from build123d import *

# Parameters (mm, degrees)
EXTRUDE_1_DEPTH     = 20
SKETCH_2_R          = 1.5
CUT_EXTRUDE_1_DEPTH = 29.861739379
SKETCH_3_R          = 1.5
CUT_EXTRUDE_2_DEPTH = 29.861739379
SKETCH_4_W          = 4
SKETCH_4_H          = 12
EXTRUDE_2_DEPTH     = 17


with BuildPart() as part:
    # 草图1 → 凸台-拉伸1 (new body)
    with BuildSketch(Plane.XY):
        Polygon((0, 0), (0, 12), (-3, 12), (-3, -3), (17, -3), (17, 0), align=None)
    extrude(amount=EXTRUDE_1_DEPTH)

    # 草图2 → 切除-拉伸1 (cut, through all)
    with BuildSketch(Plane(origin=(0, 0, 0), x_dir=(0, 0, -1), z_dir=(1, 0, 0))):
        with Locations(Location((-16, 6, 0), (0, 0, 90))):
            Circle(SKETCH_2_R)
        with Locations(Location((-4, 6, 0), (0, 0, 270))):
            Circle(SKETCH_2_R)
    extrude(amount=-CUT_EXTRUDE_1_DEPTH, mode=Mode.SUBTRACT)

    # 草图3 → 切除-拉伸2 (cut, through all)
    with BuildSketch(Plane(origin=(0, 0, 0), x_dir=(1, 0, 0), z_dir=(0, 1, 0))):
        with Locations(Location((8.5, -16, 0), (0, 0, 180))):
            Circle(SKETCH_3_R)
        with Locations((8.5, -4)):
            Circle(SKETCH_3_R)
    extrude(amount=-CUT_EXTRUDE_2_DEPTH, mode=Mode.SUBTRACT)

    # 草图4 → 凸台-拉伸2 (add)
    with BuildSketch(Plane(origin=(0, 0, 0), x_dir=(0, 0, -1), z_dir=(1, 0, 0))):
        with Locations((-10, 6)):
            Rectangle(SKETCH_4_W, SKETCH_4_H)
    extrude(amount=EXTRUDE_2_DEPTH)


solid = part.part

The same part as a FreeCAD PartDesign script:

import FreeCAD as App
import Part
import Sketcher
Q = App.Units.Quantity


def add_polygon(sketch, points):
    """Adds a closed chain of lines whose ends are joined by coincident constraints."""
    first, n = sketch.GeometryCount, len(points)
    for a, b in zip(points, points[1:] + points[:1]):
        sketch.addGeometry(Part.LineSegment(App.Vector(*a, 0), App.Vector(*b, 0)), False)
    for i in range(n):
        sketch.addConstraint(Sketcher.Constraint("Coincident", first + i, 2, first + (i + 1) % n, 1))

doc = App.newDocument("Part")
body = doc.addObject("PartDesign::Body", "Body")

# Sketch on XY plane
sketch1 = body.newObject("Sketcher::SketchObject", "Sketch")
sketch1.AttachmentSupport = (doc.getObject("XY_Plane"), [""])
sketch1.MapMode = "FlatFace"
add_polygon(sketch1, [(0, 0), (0, 12), (-3, 12), (-3, -3), (17, -3), (17, 0)])  # lines 0-5
sketch1.addConstraint([
    Sketcher.Constraint("Vertical", 0),
    Sketcher.Constraint("Horizontal", 1),
    Sketcher.Constraint("Vertical", 2),
    Sketcher.Constraint("Horizontal", 3),
    Sketcher.Constraint("Vertical", 4),
    Sketcher.Constraint("Horizontal", 5),
    Sketcher.Constraint("Coincident", 5, 2, -1, 1),
    Sketcher.Constraint("Equal", 1, 4),
    Sketcher.Constraint("DistanceX", 1, 2, 1, 1, Q("3 mm")),
    Sketcher.Constraint("DistanceX", 3, 1, 3, 2, Q("20 mm")),
    Sketcher.Constraint("DistanceY", 0, 1, 0, 2, Q("12 mm")),
])
pad1 = body.newObject("PartDesign::Pad", "Pad")
pad1.Profile = sketch1
pad1.Length = 20

# Sketch on YZ plane
sketch2 = body.newObject("Sketcher::SketchObject", "Sketch001")
sketch2.AttachmentSupport = (doc.getObject("YZ_Plane"), [""])
sketch2.MapMode = "FlatFace"
sketch2.addGeometry([
    Part.Circle(App.Vector(6, 16, 0), App.Vector(0, 0, 1), 1.5),
    Part.Circle(App.Vector(6, 4, 0), App.Vector(0, 0, 1), 1.5),
], False)
sketch2.addConstraint([
    Sketcher.Constraint("Equal", 0, 1),
    Sketcher.Constraint("Vertical", 0, 3, 1, 3),
    Sketcher.Constraint("Diameter", 0, Q("3 mm")),
    Sketcher.Constraint("DistanceX", -1, 1, 0, 3, Q("6 mm")),
    Sketcher.Constraint("DistanceY", -1, 1, 0, 3, Q("16 mm")),
    Sketcher.Constraint("DistanceY", -1, 1, 1, 3, Q("4 mm")),
])
pocket1 = body.newObject("PartDesign::Pocket", "Pocket")
pocket1.Profile = sketch2
pocket1.Type = "ThroughAll"

# Sketch on XZ plane
sketch3 = body.newObject("Sketcher::SketchObject", "Sketch002")
sketch3.AttachmentSupport = (doc.getObject("XZ_Plane"), [""])
sketch3.MapMode = "FlatFace"
sketch3.addGeometry([
    Part.Circle(App.Vector(8.5, 16, 0), App.Vector(0, 0, 1), 1.5),
    Part.Circle(App.Vector(8.5, 4, 0), App.Vector(0, 0, 1), 1.5),
], False)
sketch3.addConstraint([
    Sketcher.Constraint("Equal", 0, 1),
    Sketcher.Constraint("Vertical", 0, 3, 1, 3),
    Sketcher.Constraint("Diameter", 0, Q("3 mm")),
    Sketcher.Constraint("DistanceY", -1, 1, 0, 3, Q("16 mm")),
    Sketcher.Constraint("DistanceY", -1, 1, 1, 3, Q("4 mm")),
    Sketcher.Constraint("DistanceX", -1, 1, 0, 3, Q("8.5 mm")),
])
pocket2 = body.newObject("PartDesign::Pocket", "Pocket001")
pocket2.Profile = sketch3
pocket2.Type = "ThroughAll"
pocket2.Reversed = True

# Sketch on YZ plane
sketch4 = body.newObject("Sketcher::SketchObject", "Sketch003")
sketch4.AttachmentSupport = (doc.getObject("YZ_Plane"), [""])
sketch4.MapMode = "FlatFace"
add_polygon(sketch4, [(12, 12), (0, 12), (0, 8), (12, 8)])  # lines 0-3
sketch4.addConstraint([
    Sketcher.Constraint("Horizontal", 0),
    Sketcher.Constraint("Vertical", 1),
    Sketcher.Constraint("Horizontal", 2),
    Sketcher.Constraint("Vertical", 3),
    Sketcher.Constraint("PointOnObject", 0, 2, -2),
    Sketcher.Constraint("DistanceX", 0, 2, 0, 1, Q("12 mm")),
    Sketcher.Constraint("DistanceY", 1, 2, 1, 1, Q("4 mm")),
    Sketcher.Constraint("DistanceY", -1, 1, 0, 2, Q("12 mm")),
])
pad2 = body.newObject("PartDesign::Pad", "Pad001")
pad2.Profile = sketch4
pad2.Length = 17

doc.recompute()
